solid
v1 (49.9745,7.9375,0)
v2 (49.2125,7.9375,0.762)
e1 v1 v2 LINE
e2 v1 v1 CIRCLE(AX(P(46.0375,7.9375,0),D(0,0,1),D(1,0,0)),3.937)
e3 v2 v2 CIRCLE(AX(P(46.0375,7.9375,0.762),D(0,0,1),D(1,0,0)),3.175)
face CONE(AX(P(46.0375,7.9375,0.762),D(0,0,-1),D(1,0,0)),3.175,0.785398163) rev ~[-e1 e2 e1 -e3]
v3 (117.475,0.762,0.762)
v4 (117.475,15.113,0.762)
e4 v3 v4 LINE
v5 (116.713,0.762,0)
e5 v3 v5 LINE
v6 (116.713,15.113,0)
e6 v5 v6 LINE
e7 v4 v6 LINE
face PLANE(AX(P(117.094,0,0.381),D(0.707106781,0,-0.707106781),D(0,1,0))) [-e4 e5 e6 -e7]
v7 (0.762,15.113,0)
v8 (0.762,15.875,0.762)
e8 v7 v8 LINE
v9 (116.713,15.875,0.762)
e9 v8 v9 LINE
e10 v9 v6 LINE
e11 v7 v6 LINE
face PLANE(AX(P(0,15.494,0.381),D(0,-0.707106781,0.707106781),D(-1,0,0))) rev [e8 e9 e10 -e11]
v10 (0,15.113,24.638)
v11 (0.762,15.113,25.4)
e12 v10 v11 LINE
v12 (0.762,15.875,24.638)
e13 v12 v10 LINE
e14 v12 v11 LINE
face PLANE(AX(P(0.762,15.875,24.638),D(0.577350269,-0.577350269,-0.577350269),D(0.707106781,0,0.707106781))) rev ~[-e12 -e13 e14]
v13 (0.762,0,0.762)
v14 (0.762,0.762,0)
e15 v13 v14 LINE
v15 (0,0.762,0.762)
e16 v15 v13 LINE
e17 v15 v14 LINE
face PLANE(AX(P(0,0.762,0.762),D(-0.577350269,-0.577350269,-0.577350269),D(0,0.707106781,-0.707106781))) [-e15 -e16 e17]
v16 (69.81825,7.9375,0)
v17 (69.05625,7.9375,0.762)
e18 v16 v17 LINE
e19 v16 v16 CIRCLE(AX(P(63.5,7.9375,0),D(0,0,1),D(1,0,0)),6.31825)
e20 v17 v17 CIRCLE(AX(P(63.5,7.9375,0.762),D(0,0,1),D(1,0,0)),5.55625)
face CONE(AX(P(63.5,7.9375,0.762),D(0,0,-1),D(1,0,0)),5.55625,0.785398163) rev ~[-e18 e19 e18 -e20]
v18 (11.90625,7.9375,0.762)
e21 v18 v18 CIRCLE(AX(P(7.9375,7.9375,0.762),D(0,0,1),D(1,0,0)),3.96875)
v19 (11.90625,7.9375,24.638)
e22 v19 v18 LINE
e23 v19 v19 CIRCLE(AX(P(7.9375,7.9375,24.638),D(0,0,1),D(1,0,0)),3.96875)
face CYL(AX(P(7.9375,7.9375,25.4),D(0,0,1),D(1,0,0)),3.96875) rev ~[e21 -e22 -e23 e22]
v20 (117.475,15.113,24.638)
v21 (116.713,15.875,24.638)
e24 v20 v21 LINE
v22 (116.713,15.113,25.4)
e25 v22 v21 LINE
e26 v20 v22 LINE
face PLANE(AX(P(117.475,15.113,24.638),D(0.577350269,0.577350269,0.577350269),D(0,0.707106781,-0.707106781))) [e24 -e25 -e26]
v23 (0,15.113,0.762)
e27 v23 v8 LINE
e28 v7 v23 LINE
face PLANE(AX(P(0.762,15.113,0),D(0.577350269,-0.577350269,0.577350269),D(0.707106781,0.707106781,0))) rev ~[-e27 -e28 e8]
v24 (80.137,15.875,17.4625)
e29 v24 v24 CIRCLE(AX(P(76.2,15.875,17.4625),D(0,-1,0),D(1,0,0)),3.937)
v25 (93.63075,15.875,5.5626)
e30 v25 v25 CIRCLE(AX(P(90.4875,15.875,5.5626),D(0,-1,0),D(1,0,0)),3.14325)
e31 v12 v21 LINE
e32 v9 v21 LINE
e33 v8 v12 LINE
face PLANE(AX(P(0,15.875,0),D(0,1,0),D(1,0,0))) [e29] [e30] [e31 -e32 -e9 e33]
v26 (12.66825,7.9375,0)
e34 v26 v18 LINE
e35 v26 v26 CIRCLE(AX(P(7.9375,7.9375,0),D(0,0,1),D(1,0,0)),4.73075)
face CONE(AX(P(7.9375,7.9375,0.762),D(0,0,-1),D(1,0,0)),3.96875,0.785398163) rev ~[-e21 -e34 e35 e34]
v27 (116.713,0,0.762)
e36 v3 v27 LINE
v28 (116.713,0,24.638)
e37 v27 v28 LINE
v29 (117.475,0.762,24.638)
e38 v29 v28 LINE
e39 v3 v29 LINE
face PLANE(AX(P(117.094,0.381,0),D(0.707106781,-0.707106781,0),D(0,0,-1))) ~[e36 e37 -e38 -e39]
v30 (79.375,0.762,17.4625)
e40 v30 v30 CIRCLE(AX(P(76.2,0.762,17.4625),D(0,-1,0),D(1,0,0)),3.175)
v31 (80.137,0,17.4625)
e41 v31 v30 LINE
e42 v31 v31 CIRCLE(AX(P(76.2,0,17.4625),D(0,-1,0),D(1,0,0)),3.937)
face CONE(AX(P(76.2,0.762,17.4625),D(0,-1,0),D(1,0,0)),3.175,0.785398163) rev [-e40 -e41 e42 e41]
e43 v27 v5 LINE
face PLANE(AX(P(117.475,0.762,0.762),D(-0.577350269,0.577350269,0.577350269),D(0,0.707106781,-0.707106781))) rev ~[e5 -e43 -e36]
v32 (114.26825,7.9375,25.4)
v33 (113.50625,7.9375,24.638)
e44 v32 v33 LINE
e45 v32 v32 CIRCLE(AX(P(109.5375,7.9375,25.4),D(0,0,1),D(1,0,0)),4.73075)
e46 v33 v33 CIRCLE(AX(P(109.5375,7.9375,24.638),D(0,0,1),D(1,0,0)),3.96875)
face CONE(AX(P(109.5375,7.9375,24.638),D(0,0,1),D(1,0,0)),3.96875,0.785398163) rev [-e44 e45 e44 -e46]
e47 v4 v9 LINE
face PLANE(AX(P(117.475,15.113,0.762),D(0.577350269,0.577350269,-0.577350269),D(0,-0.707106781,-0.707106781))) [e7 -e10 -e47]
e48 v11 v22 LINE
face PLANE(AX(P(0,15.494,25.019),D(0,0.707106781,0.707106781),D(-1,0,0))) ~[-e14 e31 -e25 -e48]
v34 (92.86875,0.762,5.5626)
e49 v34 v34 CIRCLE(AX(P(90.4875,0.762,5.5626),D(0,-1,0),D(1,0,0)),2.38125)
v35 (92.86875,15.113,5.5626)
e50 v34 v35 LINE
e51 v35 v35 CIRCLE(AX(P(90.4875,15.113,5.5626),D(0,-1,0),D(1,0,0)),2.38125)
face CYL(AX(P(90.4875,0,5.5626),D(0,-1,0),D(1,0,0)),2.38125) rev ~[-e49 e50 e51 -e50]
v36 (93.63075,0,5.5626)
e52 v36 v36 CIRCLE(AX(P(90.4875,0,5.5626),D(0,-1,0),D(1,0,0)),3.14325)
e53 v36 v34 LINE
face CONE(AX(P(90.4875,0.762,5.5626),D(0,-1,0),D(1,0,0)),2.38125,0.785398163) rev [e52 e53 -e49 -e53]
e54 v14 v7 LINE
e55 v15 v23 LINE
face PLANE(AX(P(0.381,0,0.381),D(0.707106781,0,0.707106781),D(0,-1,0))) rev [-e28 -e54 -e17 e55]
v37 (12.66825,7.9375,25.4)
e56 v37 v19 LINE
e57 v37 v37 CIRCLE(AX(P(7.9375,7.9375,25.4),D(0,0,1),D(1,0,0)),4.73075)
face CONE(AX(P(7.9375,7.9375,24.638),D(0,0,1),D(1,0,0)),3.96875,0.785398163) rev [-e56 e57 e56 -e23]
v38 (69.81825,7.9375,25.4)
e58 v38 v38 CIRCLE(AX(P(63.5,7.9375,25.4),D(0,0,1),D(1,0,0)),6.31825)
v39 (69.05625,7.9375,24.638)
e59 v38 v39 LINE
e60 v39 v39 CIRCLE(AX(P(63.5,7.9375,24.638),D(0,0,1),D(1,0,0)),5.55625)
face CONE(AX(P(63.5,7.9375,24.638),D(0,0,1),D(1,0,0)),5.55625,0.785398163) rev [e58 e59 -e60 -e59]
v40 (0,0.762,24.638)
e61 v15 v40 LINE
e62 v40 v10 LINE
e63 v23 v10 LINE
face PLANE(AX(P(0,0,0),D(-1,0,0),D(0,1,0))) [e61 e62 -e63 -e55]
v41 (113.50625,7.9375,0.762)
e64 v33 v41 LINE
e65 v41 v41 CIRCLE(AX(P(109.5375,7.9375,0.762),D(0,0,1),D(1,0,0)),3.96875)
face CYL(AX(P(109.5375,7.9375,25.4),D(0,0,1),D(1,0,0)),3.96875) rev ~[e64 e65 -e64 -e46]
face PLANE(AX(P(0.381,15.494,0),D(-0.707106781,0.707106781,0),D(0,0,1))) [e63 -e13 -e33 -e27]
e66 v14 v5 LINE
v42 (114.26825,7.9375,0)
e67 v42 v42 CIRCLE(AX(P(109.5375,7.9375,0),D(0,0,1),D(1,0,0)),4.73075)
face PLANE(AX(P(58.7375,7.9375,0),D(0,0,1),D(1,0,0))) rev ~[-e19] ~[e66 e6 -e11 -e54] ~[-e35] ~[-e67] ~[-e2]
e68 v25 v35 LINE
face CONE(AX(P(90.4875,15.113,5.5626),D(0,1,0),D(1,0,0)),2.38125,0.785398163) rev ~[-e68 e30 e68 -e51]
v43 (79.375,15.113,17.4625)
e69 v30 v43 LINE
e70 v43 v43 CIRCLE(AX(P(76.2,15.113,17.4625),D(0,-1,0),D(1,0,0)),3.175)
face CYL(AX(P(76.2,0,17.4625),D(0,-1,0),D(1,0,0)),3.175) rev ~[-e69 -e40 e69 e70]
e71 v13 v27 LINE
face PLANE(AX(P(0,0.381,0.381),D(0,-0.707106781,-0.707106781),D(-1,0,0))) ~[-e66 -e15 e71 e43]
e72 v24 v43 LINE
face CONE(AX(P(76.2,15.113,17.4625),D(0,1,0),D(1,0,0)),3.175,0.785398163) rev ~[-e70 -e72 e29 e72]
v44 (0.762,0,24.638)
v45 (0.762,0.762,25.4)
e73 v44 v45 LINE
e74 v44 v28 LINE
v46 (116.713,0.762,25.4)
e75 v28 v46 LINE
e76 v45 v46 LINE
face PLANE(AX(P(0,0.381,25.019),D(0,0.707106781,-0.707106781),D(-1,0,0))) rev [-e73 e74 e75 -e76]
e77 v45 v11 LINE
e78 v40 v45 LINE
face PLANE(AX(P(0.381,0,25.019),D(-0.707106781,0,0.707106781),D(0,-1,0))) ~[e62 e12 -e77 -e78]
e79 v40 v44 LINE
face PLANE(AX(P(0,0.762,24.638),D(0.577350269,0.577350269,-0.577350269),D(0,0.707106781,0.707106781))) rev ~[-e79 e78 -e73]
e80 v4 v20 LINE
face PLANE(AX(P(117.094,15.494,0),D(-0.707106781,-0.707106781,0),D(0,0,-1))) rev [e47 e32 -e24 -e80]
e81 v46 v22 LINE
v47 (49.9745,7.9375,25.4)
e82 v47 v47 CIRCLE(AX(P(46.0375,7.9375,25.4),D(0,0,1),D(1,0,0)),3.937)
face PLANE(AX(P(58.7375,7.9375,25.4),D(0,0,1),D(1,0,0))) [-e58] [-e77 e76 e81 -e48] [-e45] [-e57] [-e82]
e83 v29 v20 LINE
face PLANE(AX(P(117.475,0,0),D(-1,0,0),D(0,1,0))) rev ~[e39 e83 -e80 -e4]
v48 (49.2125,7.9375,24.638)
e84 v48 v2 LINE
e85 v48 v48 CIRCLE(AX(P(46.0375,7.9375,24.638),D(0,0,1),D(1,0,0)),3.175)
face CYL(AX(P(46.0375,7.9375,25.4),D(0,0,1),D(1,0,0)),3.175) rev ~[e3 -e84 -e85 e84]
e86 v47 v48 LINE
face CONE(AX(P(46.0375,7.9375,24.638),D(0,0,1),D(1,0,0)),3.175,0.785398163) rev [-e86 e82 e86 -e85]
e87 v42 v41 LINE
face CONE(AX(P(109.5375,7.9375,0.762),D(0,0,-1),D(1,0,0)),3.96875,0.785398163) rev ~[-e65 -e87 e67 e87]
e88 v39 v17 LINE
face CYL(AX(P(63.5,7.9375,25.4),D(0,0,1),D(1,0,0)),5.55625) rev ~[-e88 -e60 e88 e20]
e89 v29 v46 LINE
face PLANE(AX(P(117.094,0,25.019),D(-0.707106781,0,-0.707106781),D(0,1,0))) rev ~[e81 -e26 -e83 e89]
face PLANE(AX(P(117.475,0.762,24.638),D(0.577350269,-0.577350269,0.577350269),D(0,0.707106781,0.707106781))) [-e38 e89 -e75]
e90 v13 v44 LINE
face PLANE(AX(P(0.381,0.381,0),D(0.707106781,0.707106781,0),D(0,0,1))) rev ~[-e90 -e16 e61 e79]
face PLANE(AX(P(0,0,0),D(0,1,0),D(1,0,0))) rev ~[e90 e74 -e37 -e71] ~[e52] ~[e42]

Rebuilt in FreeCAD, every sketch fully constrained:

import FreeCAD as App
import Part
import Sketcher

V = App.Vector
Q = App.Units.Quantity


def add_polygon(sketch, points):
    """Adds a closed chain of lines whose ends are joined by coincident constraints."""
    first, n = sketch.GeometryCount, len(points)
    for a, b in zip(points, points[1:] + points[:1]):
        sketch.addGeometry(Part.LineSegment(App.Vector(*a, 0), App.Vector(*b, 0)), False)
    for i in range(n):
        sketch.addConstraint(Sketcher.Constraint("Coincident", first + i, 2, first + (i + 1) % n, 1))

doc = App.newDocument("Part")
body = doc.addObject("PartDesign::Body", "Body")

# Sketch on XY plane
sketch1 = body.newObject("Sketcher::SketchObject", "Sketch")
sketch1.AttachmentSupport = (doc.getObject("XY_Plane"), [""])
sketch1.MapMode = "FlatFace"
add_polygon(sketch1, [(0, 16), (0, 0), (117, 0), (117, 16)])  # lines 0-3
sketch1.addConstraint([
    Sketcher.Constraint("Vertical", 0),
    Sketcher.Constraint("Horizontal", 1),
    Sketcher.Constraint("Vertical", 2),
    Sketcher.Constraint("Horizontal", 3),
    Sketcher.Constraint("Coincident", 0, 2, -1, 1),
    Sketcher.Constraint("DistanceX", 1, 1, 1, 2, Q("4.625 in")),
    Sketcher.Constraint("DistanceY", 0, 2, 0, 1, Q("0.625 in")),
])
pad1 = body.newObject("PartDesign::Pad", "Pad")
pad1.Profile = sketch1
pad1.Length = Q("1 in")

# Sketch on XY plane
sketch2 = body.newObject("Sketcher::SketchObject", "Sketch001")
sketch2.AttachmentSupport = (doc.getObject("XY_Plane"), [""])
sketch2.MapMode = "FlatFace"
sketch2.AttachmentOffset = App.Placement(V(0, 0, 1 * 25.4), App.Rotation())
sketch2.addGeometry([
    Part.Circle(V(7.9, 7.9, 0), V(0, 0, 1), 4),
    Part.Circle(V(46, 7.9, 0), V(0, 0, 1), 3.2),
    Part.Circle(V(63.5, 7.9, 0), V(0, 0, 1), 5.6),
    Part.Circle(V(109.5, 7.9, 0), V(0, 0, 1), 4),
], False)
sketch2.addConstraint([
    Sketcher.Constraint("Equal", 0, 3),
    Sketcher.Constraint("Horizontal", 0, 3, 1, 3),
    Sketcher.Constraint("Horizontal", 1, 3, 2, 3),
    Sketcher.Constraint("Horizontal", 2, 3, 3, 3),
    Sketcher.Constraint("Diameter", 1, Q("0.25 in")),
    Sketcher.Constraint("Diameter", 0, Q("0.3125 in")),
    Sketcher.Constraint("Diameter", 2, Q("0.4375 in")),
    Sketcher.Constraint("DistanceX", 0, 3, 3, 3, Q("4 in")),
    Sketcher.Constraint("DistanceX", -1, 1, 2, 3, Q("2.5 in")),
    Sketcher.Constraint("DistanceX", 0, 3, 1, 3, Q("1.5 in")),
    Sketcher.Constraint("DistanceX", -1, 1, 0, 3, Q("0.3125 in")),
    Sketcher.Constraint("DistanceY", -1, 1, 0, 3, Q("0.3125 in")),
])
pocket1 = body.newObject("PartDesign::Pocket", "Pocket")
pocket1.Profile = sketch2
pocket1.Type = "ThroughAll"

# Sketch on XZ plane
sketch3 = body.newObject("Sketcher::SketchObject", "Sketch002")
sketch3.AttachmentSupport = (doc.getObject("XZ_Plane"), [""])
sketch3.MapMode = "FlatFace"
sketch3.addGeometry([
    Part.Circle(V(76.2, 17.5, 0), V(0, 0, 1), 3.2),
    Part.Circle(V(90.5, 5.6, 0), V(0, 0, 1), 2.4),
], False)
sketch3.addConstraint([
    Sketcher.Constraint("Diameter", 0, Q("0.25 in")),
    Sketcher.Constraint("Diameter", 1, Q("0.1875 in")),
    Sketcher.Constraint("DistanceX", -1, 1, 0, 3, Q("3 in")),
    Sketcher.Constraint("DistanceY", -1, 1, 0, 3, Q("0.6875 in")),
    Sketcher.Constraint("DistanceX", -1, 1, 1, 3, Q("3.5625 in")),
    Sketcher.Constraint("DistanceY", -1, 1, 1, 3, Q("0.219 in")),
])
pocket2 = body.newObject("PartDesign::Pocket", "Pocket001")
pocket2.Profile = sketch3
pocket2.Type = "ThroughAll"
doc.recompute()

chamfer = body.newObject("PartDesign::Chamfer", "Chamfer")
chamfer.Base = (pocket2, ["Edge1"])
chamfer.UseAllEdges = True
chamfer.Size = Q("0.03 in")

doc.recompute()
